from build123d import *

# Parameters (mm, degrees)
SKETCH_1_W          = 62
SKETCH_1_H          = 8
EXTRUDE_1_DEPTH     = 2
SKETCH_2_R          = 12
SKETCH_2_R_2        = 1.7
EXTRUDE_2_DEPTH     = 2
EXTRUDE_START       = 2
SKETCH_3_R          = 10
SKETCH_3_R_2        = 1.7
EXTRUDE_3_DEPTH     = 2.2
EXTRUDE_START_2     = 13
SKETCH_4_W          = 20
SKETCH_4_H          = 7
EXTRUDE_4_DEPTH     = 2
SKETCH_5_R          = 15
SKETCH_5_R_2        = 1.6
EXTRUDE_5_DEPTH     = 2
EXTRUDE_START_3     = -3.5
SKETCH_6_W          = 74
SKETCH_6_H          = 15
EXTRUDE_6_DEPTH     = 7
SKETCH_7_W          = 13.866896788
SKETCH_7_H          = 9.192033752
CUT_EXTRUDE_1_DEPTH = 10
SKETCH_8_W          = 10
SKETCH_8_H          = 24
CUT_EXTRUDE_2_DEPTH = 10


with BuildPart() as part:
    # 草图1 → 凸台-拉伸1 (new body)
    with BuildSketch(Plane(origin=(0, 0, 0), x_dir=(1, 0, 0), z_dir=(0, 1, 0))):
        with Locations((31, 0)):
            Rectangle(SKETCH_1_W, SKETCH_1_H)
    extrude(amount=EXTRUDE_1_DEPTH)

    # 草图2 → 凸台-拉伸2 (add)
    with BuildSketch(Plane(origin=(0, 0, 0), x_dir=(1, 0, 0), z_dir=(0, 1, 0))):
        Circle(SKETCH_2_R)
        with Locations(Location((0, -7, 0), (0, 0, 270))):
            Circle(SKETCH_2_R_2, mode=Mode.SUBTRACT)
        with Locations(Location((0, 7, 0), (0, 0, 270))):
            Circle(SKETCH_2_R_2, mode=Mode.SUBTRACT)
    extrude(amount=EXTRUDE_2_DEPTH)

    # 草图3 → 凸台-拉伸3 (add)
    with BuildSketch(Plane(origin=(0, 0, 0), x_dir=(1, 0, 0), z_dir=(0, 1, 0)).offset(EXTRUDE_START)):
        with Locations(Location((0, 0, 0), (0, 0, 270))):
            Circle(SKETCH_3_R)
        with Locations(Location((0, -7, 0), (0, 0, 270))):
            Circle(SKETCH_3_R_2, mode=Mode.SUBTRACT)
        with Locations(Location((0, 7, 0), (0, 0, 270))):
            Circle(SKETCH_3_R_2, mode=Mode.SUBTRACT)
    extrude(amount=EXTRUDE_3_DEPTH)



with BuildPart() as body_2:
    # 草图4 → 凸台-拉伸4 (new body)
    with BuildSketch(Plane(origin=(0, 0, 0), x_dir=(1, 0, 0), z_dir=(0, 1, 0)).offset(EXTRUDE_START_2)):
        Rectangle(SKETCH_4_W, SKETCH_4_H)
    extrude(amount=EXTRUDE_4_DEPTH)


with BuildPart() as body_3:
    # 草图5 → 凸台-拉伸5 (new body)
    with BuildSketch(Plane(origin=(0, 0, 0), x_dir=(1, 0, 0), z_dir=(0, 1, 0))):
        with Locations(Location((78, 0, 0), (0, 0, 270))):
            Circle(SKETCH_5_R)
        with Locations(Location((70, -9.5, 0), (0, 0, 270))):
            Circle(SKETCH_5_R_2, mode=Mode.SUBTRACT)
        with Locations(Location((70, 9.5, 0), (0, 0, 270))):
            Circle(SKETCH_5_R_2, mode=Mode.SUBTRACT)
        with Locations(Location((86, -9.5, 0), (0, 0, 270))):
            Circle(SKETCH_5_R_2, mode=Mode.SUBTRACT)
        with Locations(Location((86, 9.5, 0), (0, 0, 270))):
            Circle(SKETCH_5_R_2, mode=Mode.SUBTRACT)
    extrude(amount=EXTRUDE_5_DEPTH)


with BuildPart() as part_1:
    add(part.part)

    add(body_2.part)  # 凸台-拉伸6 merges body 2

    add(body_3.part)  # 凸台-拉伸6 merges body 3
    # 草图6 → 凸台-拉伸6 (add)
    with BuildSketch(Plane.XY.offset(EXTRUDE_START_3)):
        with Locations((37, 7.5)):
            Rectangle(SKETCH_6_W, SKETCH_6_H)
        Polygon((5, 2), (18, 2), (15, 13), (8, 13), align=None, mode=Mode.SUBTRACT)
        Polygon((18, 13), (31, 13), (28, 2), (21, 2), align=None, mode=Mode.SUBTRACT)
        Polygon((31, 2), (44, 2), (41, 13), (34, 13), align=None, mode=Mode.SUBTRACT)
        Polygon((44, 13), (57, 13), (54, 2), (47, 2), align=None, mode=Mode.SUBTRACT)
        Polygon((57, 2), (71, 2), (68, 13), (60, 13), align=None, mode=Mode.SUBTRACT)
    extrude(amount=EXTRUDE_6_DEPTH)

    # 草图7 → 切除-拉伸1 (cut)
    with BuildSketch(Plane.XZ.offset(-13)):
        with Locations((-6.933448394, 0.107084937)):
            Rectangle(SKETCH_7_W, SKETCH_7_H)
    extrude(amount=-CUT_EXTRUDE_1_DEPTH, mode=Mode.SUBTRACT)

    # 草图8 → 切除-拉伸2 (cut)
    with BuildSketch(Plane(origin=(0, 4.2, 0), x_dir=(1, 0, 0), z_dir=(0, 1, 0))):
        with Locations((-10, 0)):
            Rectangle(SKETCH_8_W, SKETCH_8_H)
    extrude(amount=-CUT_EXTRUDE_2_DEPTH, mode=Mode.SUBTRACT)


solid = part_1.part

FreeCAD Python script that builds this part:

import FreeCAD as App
import Part
import Sketcher

V = App.Vector
Q = App.Units.Quantity

doc = App.newDocument("Part")
params = doc.addObject("Spreadsheet::Sheet", "Params")
for row, (alias, value) in enumerate([
    ("sketch1_width", "62 mm"),
    ("sketch1_height", "8 mm"),
    ("pad1_length", "2 mm"),
    ("sketch2_diameter", "24 mm"),
    ("sketch2_diameter2", "3.4 mm"),
    ("pad2_length", "2 mm"),
    ("sketch3_diameter", "20 mm"),
    ("sketch3_diameter2", "3.4 mm"),
    ("pad3_length", "2.2 mm"),
    ("sketch4_width", "20 mm"),
    ("sketch4_height", "7 mm"),
    ("pad4_length", "2 mm"),
    ("sketch5_diameter", "30 mm"),
    ("sketch5_diameter2", "3.2 mm"),
    ("pad5_length", "2 mm"),
    ("sketch6_width", "74 mm"),
    ("sketch6_width2", "13 mm"),
    ("sketch6_width3", "7 mm"),
    ("sketch6_width4", "14 mm"),
    ("sketch6_height", "15 mm"),
    ("pad6_length", "7 mm"),
    ("pocket1_length", "10 mm"),
    ("sketch8_width", "10 mm"),
    ("sketch8_height", "24 mm"),
    ("pocket2_length", "10 mm"),
], start=1):
    params.set(f"A{row}", alias)
    params.set(f"B{row}", "=" + value)
    params.setAlias(f"B{row}", alias)

body = doc.addObject("PartDesign::Body", "Body")

# Sketch on XZ plane
sketch1 = body.newObject("Sketcher::SketchObject", "Sketch")
sketch1.AttachmentSupport = (doc.getObject("XZ_Plane"), [""])
sketch1.MapMode = "FlatFace"
sketch1.addGeometry(Part.LineSegment(V(0, -4, 0), V(0, 4, 0)), False)
sketch1.addGeometry(Part.LineSegment(V(0, 4, 0), V(62, 4, 0)), False)
sketch1.addGeometry(Part.LineSegment(V(62, 4, 0), V(62, -4, 0)), False)
sketch1.addGeometry(Part.LineSegment(V(62, -4, 0), V(0, -4, 0)), False)
sketch1.addConstraint(Sketcher.Constraint("Coincident", 0, 2, 1, 1))
sketch1.addConstraint(Sketcher.Constraint("Coincident", 1, 2, 2, 1))
sketch1.addConstraint(Sketcher.Constraint("Coincident", 2, 2, 3, 1))
sketch1.addConstraint(Sketcher.Constraint("Coincident", 3, 2, 0, 1))
sketch1.addConstraint(Sketcher.Constraint("Vertical", 0))
sketch1.addConstraint(Sketcher.Constraint("Horizontal", 1))
sketch1.addConstraint(Sketcher.Constraint("Vertical", 2))
sketch1.addConstraint(Sketcher.Constraint("Horizontal", 3))
sketch1.addConstraint(Sketcher.Constraint("Symmetric", 0, 2, 3, 2, -1, 1))
sketch1.addConstraint(Sketcher.Constraint("DistanceX", 1, 1, 1, 2, Q("62 mm")))
sketch1.addConstraint(Sketcher.Constraint("DistanceY", 0, 1, 0, 2, Q("8 mm")))
sketch1.setExpression("Constraints[9]", "Params.sketch1_width")
sketch1.setExpression("Constraints[10]", "Params.sketch1_height")
pad1 = body.newObject("PartDesign::Pad", "Pad")
pad1.Profile = sketch1
pad1.setExpression("Length", "Params.pad1_length")
pad1.Reversed = True

# Sketch on XZ plane
sketch2 = body.newObject("Sketcher::SketchObject", "Sketch001")
sketch2.AttachmentSupport = (doc.getObject("XZ_Plane"), [""])
sketch2.MapMode = "FlatFace"
sketch2.addGeometry(Part.Circle(V(0, 0, 0), V(0, 0, 1), 12), False)
sketch2.addGeometry(Part.Circle(V(0, 7, 0), V(0, 0, 1), 1.7), False)
sketch2.addGeometry(Part.Circle(V(0, -7, 0), V(0, 0, 1), 1.7), False)
sketch2.addConstraint(Sketcher.Constraint("Coincident", 0, 3, -1, 1))
sketch2.addConstraint(Sketcher.Constraint("Equal", 1, 2))
sketch2.addConstraint(Sketcher.Constraint("Symmetric", 1, 3, 2, 3, -1, 1))
sketch2.addConstraint(Sketcher.Constraint("PointOnObject", 1, 3, -2))
sketch2.addConstraint(Sketcher.Constraint("Diameter", 0, Q("24 mm")))
sketch2.addConstraint(Sketcher.Constraint("Diameter", 1, Q("3.4 mm")))
sketch2.addConstraint(Sketcher.Constraint("DistanceY", -1, 1, 1, 3, Q("7 mm")))
sketch2.setExpression("Constraints[4]", "Params.sketch2_diameter")
sketch2.setExpression("Constraints[5]", "Params.sketch2_diameter2")
pad2 = body.newObject("PartDesign::Pad", "Pad001")
pad2.Profile = sketch2
pad2.setExpression("Length", "Params.pad2_length")
pad2.Reversed = True

# Sketch on XZ plane
sketch3 = body.newObject("Sketcher::SketchObject", "Sketch002")
sketch3.AttachmentSupport = (doc.getObject("XZ_Plane"), [""])
sketch3.MapMode = "FlatFace"
sketch3.AttachmentOffset = App.Placement(V(0, 0, -2), App.Rotation())
sketch3.addGeometry(Part.Circle(V(0, 0, 0), V(0, 0, 1), 10), False)
sketch3.addGeometry(Part.Circle(V(0, -7, 0), V(0, 0, 1), 1.7), False)
sketch3.addGeometry(Part.Circle(V(0, 7, 0), V(0, 0, 1), 1.7), False)
sketch3.addConstraint(Sketcher.Constraint("Coincident", 0, 3, -1, 1))
sketch3.addConstraint(Sketcher.Constraint("Equal", 1, 2))
sketch3.addConstraint(Sketcher.Constraint("Symmetric", 1, 3, 2, 3, -1, 1))
sketch3.addConstraint(Sketcher.Constraint("PointOnObject", 1, 3, -2))
sketch3.addConstraint(Sketcher.Constraint("Diameter", 0, Q("20 mm")))
sketch3.addConstraint(Sketcher.Constraint("Diameter", 1, Q("3.4 mm")))
sketch3.addConstraint(Sketcher.Constraint("DistanceY", 1, 3, -1, 1, Q("7 mm")))
sketch3.setExpression("Constraints[4]", "Params.sketch3_diameter")
sketch3.setExpression("Constraints[5]", "Params.sketch3_diameter2")
pad3 = body.newObject("PartDesign::Pad", "Pad002")
pad3.Profile = sketch3
pad3.setExpression("Length", "Params.pad3_length")
pad3.Reversed = True
body2 = doc.addObject("PartDesign::Body", "Body001")

# Sketch on XZ plane
sketch4 = body2.newObject("Sketcher::SketchObject", "Sketch003")
sketch4.AttachmentSupport = (doc.getObject("XZ_Plane001"), [""])
sketch4.MapMode = "FlatFace"
sketch4.AttachmentOffset = App.Placement(V(0, 0, -13), App.Rotation())
sketch4.addGeometry(Part.LineSegment(V(-10, -4, 0), V(-10, 4, 0)), False)
sketch4.addGeometry(Part.LineSegment(V(-10, 4, 0), V(10, 4, 0)), False)
sketch4.addGeometry(Part.LineSegment(V(10, 4, 0), V(10, -4, 0)), False)
sketch4.addGeometry(Part.LineSegment(V(10, -4, 0), V(-10, -4, 0)), False)
sketch4.addConstraint(Sketcher.Constraint("Coincident", 0, 2, 1, 1))
sketch4.addConstraint(Sketcher.Constraint("Coincident", 1, 2, 2, 1))
sketch4.addConstraint(Sketcher.Constraint("Coincident", 2, 2, 3, 1))
sketch4.addConstraint(Sketcher.Constraint("Coincident", 3, 2, 0, 1))
sketch4.addConstraint(Sketcher.Constraint("Vertical", 0))
sketch4.addConstraint(Sketcher.Constraint("Horizontal", 1))
sketch4.addConstraint(Sketcher.Constraint("Vertical", 2))
sketch4.addConstraint(Sketcher.Constraint("Horizontal", 3))
sketch4.addConstraint(Sketcher.Constraint("Symmetric", 0, 2, 2, 2, -1, 1))
sketch4.addConstraint(Sketcher.Constraint("DistanceX", 1, 1, 1, 2, Q("20 mm")))
sketch4.addConstraint(Sketcher.Constraint("DistanceY", 0, 1, 0, 2, Q("7 mm")))
sketch4.setExpression("Constraints[9]", "Params.sketch4_width")
sketch4.setExpression("Constraints[10]", "Params.sketch4_height")
pad4 = body2.newObject("PartDesign::Pad", "Pad003")
pad4.Profile = sketch4
pad4.setExpression("Length", "Params.pad4_length")
pad4.Reversed = True
body3 = doc.addObject("PartDesign::Body", "Body002")

# Sketch on XZ plane
sketch5 = body3.newObject("Sketcher::SketchObject", "Sketch004")
sketch5.AttachmentSupport = (doc.getObject("XZ_Plane002"), [""])
sketch5.MapMode = "FlatFace"
sketch5.addGeometry(Part.Circle(V(78, 0, 0), V(0, 0, 1), 15), False)
sketch5.addGeometry(Part.Circle(V(70, -9.5, 0), V(0, 0, 1), 1.6), False)
sketch5.addGeometry(Part.Circle(V(70, 9.5, 0), V(0, 0, 1), 1.6), False)
sketch5.addGeometry(Part.Circle(V(86, -9.5, 0), V(0, 0, 1), 1.6), False)
sketch5.addGeometry(Part.Circle(V(86, 9.5, 0), V(0, 0, 1), 1.6), False)
sketch5.addConstraint(Sketcher.Constraint("Equal", 1, 2))
sketch5.addConstraint(Sketcher.Constraint("Equal", 2, 3))
sketch5.addConstraint(Sketcher.Constraint("Equal", 3, 4))
sketch5.addConstraint(Sketcher.Constraint("Symmetric", 1, 3, 2, 3, -1))
sketch5.addConstraint(Sketcher.Constraint("Symmetric", 3, 3, 4, 3, -1))
sketch5.addConstraint(Sketcher.Constraint("PointOnObject", 0, 3, -1))
sketch5.addConstraint(Sketcher.Constraint("Horizontal", 1, 3, 3, 3))
sketch5.addConstraint(Sketcher.Constraint("Diameter", 0, Q("30 mm")))
sketch5.addConstraint(Sketcher.Constraint("Diameter", 1, Q("3.2 mm")))
sketch5.addConstraint(Sketcher.Constraint("DistanceX", -1, 1, 0, 3, Q("78 mm")))
sketch5.addConstraint(Sketcher.Constraint("DistanceX", -1, 1, 1, 3, Q("70 mm")))
sketch5.addConstraint(Sketcher.Constraint("DistanceX", -1, 1, 3, 3, Q("86 mm")))
sketch5.addConstraint(Sketcher.Constraint("DistanceY", 1, 3, 2, 3, Q("19 mm")))
sketch5.setExpression("Constraints[7]", "Params.sketch5_diameter")
sketch5.setExpression("Constraints[8]", "Params.sketch5_diameter2")
pad5 = body3.newObject("PartDesign::Pad", "Pad004")
pad5.Profile = sketch5
pad5.setExpression("Length", "Params.pad5_length")
pad5.Reversed = True
body.AllowCompound = True
doc.recompute()

boolean = body.newObject("PartDesign::Boolean", "Boolean")
boolean.Type = "Fuse"
boolean.addObjects([body2])
doc.recompute()

boolean2 = body.newObject("PartDesign::Boolean", "Boolean001")
boolean2.Type = "Fuse"
boolean2.addObjects([body3])

# Sketch on XY plane
sketch6 = body.newObject("Sketcher::SketchObject", "Sketch005")
sketch6.AttachmentSupport = (doc.getObject("XY_Plane"), [""])
sketch6.MapMode = "FlatFace"
sketch6.AttachmentOffset = App.Placement(V(0, 0, -3.5), App.Rotation())
sketch6.addGeometry(Part.LineSegment(V(0, 15, 0), V(0, 0, 0)), False)
sketch6.addGeometry(Part.LineSegment(V(0, 0, 0), V(74, 0, 0)), False)
sketch6.addGeometry(Part.LineSegment(V(74, 0, 0), V(74, 15, 0)), False)
sketch6.addGeometry(Part.LineSegment(V(74, 15, 0), V(0, 15, 0)), False)
sketch6.addGeometry(Part.LineSegment(V(18, 2, 0), V(5, 2, 0)), False)
sketch6.addGeometry(Part.LineSegment(V(5, 2, 0), V(8, 13, 0)), False)
sketch6.addGeometry(Part.LineSegment(V(8, 13, 0), V(15, 13, 0)), False)
sketch6.addGeometry(Part.LineSegment(V(15, 13, 0), V(18, 2, 0)), False)
sketch6.addGeometry(Part.LineSegment(V(21, 2, 0), V(18, 13, 0)), False)
sketch6.addGeometry(Part.LineSegment(V(18, 13, 0), V(31, 13, 0)), False)
sketch6.addGeometry(Part.LineSegment(V(31, 13, 0), V(28, 2, 0)), False)
sketch6.addGeometry(Part.LineSegment(V(28, 2, 0), V(21, 2, 0)), False)
sketch6.addGeometry(Part.LineSegment(V(44, 2, 0), V(31, 2, 0)), False)
sketch6.addGeometry(Part.LineSegment(V(31, 2, 0), V(34, 13, 0)), False)
sketch6.addGeometry(Part.LineSegment(V(34, 13, 0), V(41, 13, 0)), False)
sketch6.addGeometry(Part.LineSegment(V(41, 13, 0), V(44, 2, 0)), False)
sketch6.addGeometry(Part.LineSegment(V(47, 2, 0), V(44, 13, 0)), False)
sketch6.addGeometry(Part.LineSegment(V(44, 13, 0), V(57, 13, 0)), False)
sketch6.addGeometry(Part.LineSegment(V(57, 13, 0), V(54, 2, 0)), False)
sketch6.addGeometry(Part.LineSegment(V(54, 2, 0), V(47, 2, 0)), False)
sketch6.addGeometry(Part.LineSegment(V(71, 2, 0), V(57, 2, 0)), False)
sketch6.addGeometry(Part.LineSegment(V(57, 2, 0), V(60, 13, 0)), False)
sketch6.addGeometry(Part.LineSegment(V(60, 13, 0), V(68, 13, 0)), False)
sketch6.addGeometry(Part.LineSegment(V(68, 13, 0), V(71, 2, 0)), False)
sketch6.addConstraint(Sketcher.Constraint("Coincident", 0, 2, 1, 1))
sketch6.addConstraint(Sketcher.Constraint("Coincident", 1, 2, 2, 1))
sketch6.addConstraint(Sketcher.Constraint("Coincident", 2, 2, 3, 1))
sketch6.addConstraint(Sketcher.Constraint("Coincident", 3, 2, 0, 1))
sketch6.addConstraint(Sketcher.Constraint("Coincident", 4, 2, 5, 1))
sketch6.addConstraint(Sketcher.Constraint("Coincident", 5, 2, 6, 1))
sketch6.addConstraint(Sketcher.Constraint("Coincident", 6, 2, 7, 1))
sketch6.addConstraint(Sketcher.Constraint("Coincident", 7, 2, 4, 1))
sketch6.addConstraint(Sketcher.Constraint("Coincident", 8, 2, 9, 1))
sketch6.addConstraint(Sketcher.Constraint("Coincident", 9, 2, 10, 1))
sketch6.addConstraint(Sketcher.Constraint("Coincident", 10, 2, 11, 1))
sketch6.addConstraint(Sketcher.Constraint("Coincident", 11, 2, 8, 1))
sketch6.addConstraint(Sketcher.Constraint("Coincident", 12, 2, 13, 1))
sketch6.addConstraint(Sketcher.Constraint("Coincident", 13, 2, 14, 1))
sketch6.addConstraint(Sketcher.Constraint("Coincident", 14, 2, 15, 1))
sketch6.addConstraint(Sketcher.Constraint("Coincident", 15, 2, 12, 1))
sketch6.addConstraint(Sketcher.Constraint("Coincident", 16, 2, 17, 1))
sketch6.addConstraint(Sketcher.Constraint("Coincident", 17, 2, 18, 1))
sketch6.addConstraint(Sketcher.Constraint("Coincident", 18, 2, 19, 1))
sketch6.addConstraint(Sketcher.Constraint("Coincident", 19, 2, 16, 1))
sketch6.addConstraint(Sketcher.Constraint("Coincident", 20, 2, 21, 1))
sketch6.addConstraint(Sketcher.Constraint("Coincident", 21, 2, 22, 1))
sketch6.addConstraint(Sketcher.Constraint("Coincident", 22, 2, 23, 1))
sketch6.addConstraint(Sketcher.Constraint("Coincident", 23, 2, 20, 1))
sketch6.addConstraint(Sketcher.Constraint("Vertical", 0))
sketch6.addConstraint(Sketcher.Constraint("Horizontal", 1))
sketch6.addConstraint(Sketcher.Constraint("Vertical", 2))
sketch6.addConstraint(Sketcher.Constraint("Horizontal", 3))
sketch6.addConstraint(Sketcher.Constraint("Horizontal", 4))
sketch6.addConstraint(Sketcher.Constraint("Horizontal", 6))
sketch6.addConstraint(Sketcher.Constraint("Horizontal", 9))
sketch6.addConstraint(Sketcher.Constraint("Horizontal", 11))
sketch6.addConstraint(Sketcher.Constraint("Horizontal", 12))
sketch6.addConstraint(Sketcher.Constraint("Horizontal", 14))
sketch6.addConstraint(Sketcher.Constraint("Horizontal", 17))
sketch6.addConstraint(Sketcher.Constraint("Horizontal", 19))
sketch6.addConstraint(Sketcher.Constraint("Horizontal", 20))
sketch6.addConstraint(Sketcher.Constraint("Horizontal", 22))
sketch6.addConstraint(Sketcher.Constraint("Coincident", 0, 2, -1, 1))
sketch6.addConstraint(Sketcher.Constraint("Parallel", 7, 8))
sketch6.addConstraint(Sketcher.Constraint("Parallel", 5, 10))
sketch6.addConstraint(Sketcher.Constraint("Parallel", 10, 13))
sketch6.addConstraint(Sketcher.Constraint("Parallel", 8, 15))
sketch6.addConstraint(Sketcher.Constraint("Parallel", 15, 16))
sketch6.addConstraint(Sketcher.Constraint("Parallel", 13, 18))
sketch6.addConstraint(Sketcher.Constraint("Parallel", 18, 21))
sketch6.addConstraint(Sketcher.Constraint("Parallel", 16, 23))
sketch6.addConstraint(Sketcher.Constraint("Horizontal", 6, 2, 8, 2))
sketch6.addConstraint(Sketcher.Constraint("Horizontal", 7, 2, 10, 2))
sketch6.addConstraint(Sketcher.Constraint("Horizontal", 11, 2, 12, 2))
sketch6.addConstraint(Sketcher.Constraint("Horizontal", 9, 2, 13, 2))
sketch6.addConstraint(Sketcher.Constraint("Horizontal", 14, 2, 16, 2))
sketch6.addConstraint(Sketcher.Constraint("Horizontal", 15, 2, 18, 2))
sketch6.addConstraint(Sketcher.Constraint("Horizontal", 19, 2, 20, 2))
sketch6.addConstraint(Sketcher.Constraint("Horizontal", 17, 2, 21, 2))
sketch6.addConstraint(Sketcher.Constraint("Vertical", 7, 2, 8, 2))
sketch6.addConstraint(Sketcher.Constraint("Vertical", 9, 2, 12, 2))
sketch6.addConstraint(Sketcher.Constraint("Vertical", 15, 2, 16, 2))
sketch6.addConstraint(Sketcher.Constraint("Vertical", 17, 2, 20, 2))
sketch6.addConstraint(Sketcher.Constraint("Equal", 4, 9))
sketch6.addConstraint(Sketcher.Constraint("Equal", 9, 12))
sketch6.addConstraint(Sketcher.Constraint("Equal", 12, 17))
sketch6.addConstraint(Sketcher.Constraint("Equal", 5, 7))
sketch6.addConstraint(Sketcher.Constraint("DistanceX", 1, 1, 1, 2, Q("74 mm")))
sketch6.addConstraint(Sketcher.Constraint("DistanceX", 4, 2, 4, 1, Q("13 mm")))
sketch6.addConstraint(Sketcher.Constraint("DistanceX", 6, 1, 6, 2, Q("7 mm")))
sketch6.addConstraint(Sketcher.Constraint("DistanceX", 20, 2, 20, 1, Q("14 mm")))
sketch6.addConstraint(Sketcher.Constraint("DistanceY", 0, 2, 0, 1, Q("15 mm")))
sketch6.addConstraint(Sketcher.Constraint("DistanceX", -1, 1, 4, 2, Q("5 mm")))
sketch6.addConstraint(Sketcher.Constraint("DistanceY", -1, 1, 4, 2, Q("2 mm")))
sketch6.addConstraint(Sketcher.Constraint("DistanceY", -1, 1, 5, 2, Q("13 mm")))
sketch6.setExpression("Constraints[63]", "Params.sketch6_width")
sketch6.setExpression("Constraints[64]", "Params.sketch6_width2")
sketch6.setExpression("Constraints[65]", "Params.sketch6_width3")
sketch6.setExpression("Constraints[66]", "Params.sketch6_width4")
sketch6.setExpression("Constraints[67]", "Params.sketch6_height")
pad6 = body.newObject("PartDesign::Pad", "Pad005")
pad6.Profile = sketch6
pad6.setExpression("Length", "Params.pad6_length")

# Sketch on XZ plane
sketch7 = body.newObject("Sketcher::SketchObject", "Sketch006")
sketch7.AttachmentSupport = (doc.getObject("XZ_Plane"), [""])
sketch7.MapMode = "FlatFace"
sketch7.AttachmentOffset = App.Placement(V(0, 0, -13), App.Rotation())
sketch7.addGeometry(Part.LineSegment(V(-14, 5, 0), V(-14, -4, 0)), False)
sketch7.addGeometry(Part.LineSegment(V(-14, -4, 0), V(0, -4, 0)), False)
sketch7.addGeometry(Part.LineSegment(V(0, -4, 0), V(0, 5, 0)), False)
sketch7.addGeometry(Part.LineSegment(V(0, 5, 0), V(-14, 5, 0)), False)
sketch7.addConstraint(Sketcher.Constraint("Coincident", 0, 2, 1, 1))
sketch7.addConstraint(Sketcher.Constraint("Coincident", 1, 2, 2, 1))
sketch7.addConstraint(Sketcher.Constraint("Coincident", 2, 2, 3, 1))
sketch7.addConstraint(Sketcher.Constraint("Coincident", 3, 2, 0, 1))
sketch7.addConstraint(Sketcher.Constraint("Vertical", 0))
sketch7.addConstraint(Sketcher.Constraint("Horizontal", 1))
sketch7.addConstraint(Sketcher.Constraint("Vertical", 2))
sketch7.addConstraint(Sketcher.Constraint("Horizontal", 3))
sketch7.addConstraint(Sketcher.Constraint("PointOnObject", 1, 2, -2))
sketch7.addConstraint(Sketcher.Constraint("DistanceY", -1, 1, 2, 2, Q("4.703102 mm")))
sketch7.addConstraint(Sketcher.Constraint("DistanceX", 1, 1, 1, 2, Q("13.866897 mm")))
sketch7.addConstraint(Sketcher.Constraint("DistanceY", 0, 2, 0, 1, Q("9.192034 mm")))
pocket1 = body.newObject("PartDesign::Pocket", "Pocket")
pocket1.Profile = sketch7
pocket1.setExpression("Length", "Params.pocket1_length")

# Sketch on XZ plane
sketch8 = body.newObject("Sketcher::SketchObject", "Sketch007")
sketch8.AttachmentSupport = (doc.getObject("XZ_Plane"), [""])
sketch8.MapMode = "FlatFace"
sketch8.AttachmentOffset = App.Placement(V(0, 0, -4.2), App.Rotation())
sketch8.addGeometry(Part.LineSegment(V(-15, -12, 0), V(-15, 12, 0)), False)
sketch8.addGeometry(Part.LineSegment(V(-15, 12, 0), V(-5, 12, 0)), False)
sketch8.addGeometry(Part.LineSegment(V(-5, 12, 0), V(-5, -12, 0)), False)
sketch8.addGeometry(Part.LineSegment(V(-5, -12, 0), V(-15, -12, 0)), False)
sketch8.addConstraint(Sketcher.Constraint("Coincident", 0, 2, 1, 1))
sketch8.addConstraint(Sketcher.Constraint("Coincident", 1, 2, 2, 1))
sketch8.addConstraint(Sketcher.Constraint("Coincident", 2, 2, 3, 1))
sketch8.addConstraint(Sketcher.Constraint("Coincident", 3, 2, 0, 1))
sketch8.addConstraint(Sketcher.Constraint("Vertical", 0))
sketch8.addConstraint(Sketcher.Constraint("Horizontal", 1))
sketch8.addConstraint(Sketcher.Constraint("Vertical", 2))
sketch8.addConstraint(Sketcher.Constraint("Horizontal", 3))
sketch8.addConstraint(Sketcher.Constraint("DistanceX", 1, 1, 1, 2, Q("10 mm")))
sketch8.addConstraint(Sketcher.Constraint("DistanceY", 0, 1, 0, 2, Q("24 mm")))
sketch8.addConstraint(Sketcher.Constraint("DistanceX", 0, 2, -1, 1, Q("15 mm")))
sketch8.addConstraint(Sketcher.Constraint("DistanceY", -1, 1, 0, 2, Q("12 mm")))
sketch8.setExpression("Constraints[8]", "Params.sketch8_width")
sketch8.setExpression("Constraints[9]", "Params.sketch8_height")
pocket2 = body.newObject("PartDesign::Pocket", "Pocket001")
pocket2.Profile = sketch8
pocket2.setExpression("Length", "Params.pocket2_length")
pocket2.Reversed = True

doc.recompute()
